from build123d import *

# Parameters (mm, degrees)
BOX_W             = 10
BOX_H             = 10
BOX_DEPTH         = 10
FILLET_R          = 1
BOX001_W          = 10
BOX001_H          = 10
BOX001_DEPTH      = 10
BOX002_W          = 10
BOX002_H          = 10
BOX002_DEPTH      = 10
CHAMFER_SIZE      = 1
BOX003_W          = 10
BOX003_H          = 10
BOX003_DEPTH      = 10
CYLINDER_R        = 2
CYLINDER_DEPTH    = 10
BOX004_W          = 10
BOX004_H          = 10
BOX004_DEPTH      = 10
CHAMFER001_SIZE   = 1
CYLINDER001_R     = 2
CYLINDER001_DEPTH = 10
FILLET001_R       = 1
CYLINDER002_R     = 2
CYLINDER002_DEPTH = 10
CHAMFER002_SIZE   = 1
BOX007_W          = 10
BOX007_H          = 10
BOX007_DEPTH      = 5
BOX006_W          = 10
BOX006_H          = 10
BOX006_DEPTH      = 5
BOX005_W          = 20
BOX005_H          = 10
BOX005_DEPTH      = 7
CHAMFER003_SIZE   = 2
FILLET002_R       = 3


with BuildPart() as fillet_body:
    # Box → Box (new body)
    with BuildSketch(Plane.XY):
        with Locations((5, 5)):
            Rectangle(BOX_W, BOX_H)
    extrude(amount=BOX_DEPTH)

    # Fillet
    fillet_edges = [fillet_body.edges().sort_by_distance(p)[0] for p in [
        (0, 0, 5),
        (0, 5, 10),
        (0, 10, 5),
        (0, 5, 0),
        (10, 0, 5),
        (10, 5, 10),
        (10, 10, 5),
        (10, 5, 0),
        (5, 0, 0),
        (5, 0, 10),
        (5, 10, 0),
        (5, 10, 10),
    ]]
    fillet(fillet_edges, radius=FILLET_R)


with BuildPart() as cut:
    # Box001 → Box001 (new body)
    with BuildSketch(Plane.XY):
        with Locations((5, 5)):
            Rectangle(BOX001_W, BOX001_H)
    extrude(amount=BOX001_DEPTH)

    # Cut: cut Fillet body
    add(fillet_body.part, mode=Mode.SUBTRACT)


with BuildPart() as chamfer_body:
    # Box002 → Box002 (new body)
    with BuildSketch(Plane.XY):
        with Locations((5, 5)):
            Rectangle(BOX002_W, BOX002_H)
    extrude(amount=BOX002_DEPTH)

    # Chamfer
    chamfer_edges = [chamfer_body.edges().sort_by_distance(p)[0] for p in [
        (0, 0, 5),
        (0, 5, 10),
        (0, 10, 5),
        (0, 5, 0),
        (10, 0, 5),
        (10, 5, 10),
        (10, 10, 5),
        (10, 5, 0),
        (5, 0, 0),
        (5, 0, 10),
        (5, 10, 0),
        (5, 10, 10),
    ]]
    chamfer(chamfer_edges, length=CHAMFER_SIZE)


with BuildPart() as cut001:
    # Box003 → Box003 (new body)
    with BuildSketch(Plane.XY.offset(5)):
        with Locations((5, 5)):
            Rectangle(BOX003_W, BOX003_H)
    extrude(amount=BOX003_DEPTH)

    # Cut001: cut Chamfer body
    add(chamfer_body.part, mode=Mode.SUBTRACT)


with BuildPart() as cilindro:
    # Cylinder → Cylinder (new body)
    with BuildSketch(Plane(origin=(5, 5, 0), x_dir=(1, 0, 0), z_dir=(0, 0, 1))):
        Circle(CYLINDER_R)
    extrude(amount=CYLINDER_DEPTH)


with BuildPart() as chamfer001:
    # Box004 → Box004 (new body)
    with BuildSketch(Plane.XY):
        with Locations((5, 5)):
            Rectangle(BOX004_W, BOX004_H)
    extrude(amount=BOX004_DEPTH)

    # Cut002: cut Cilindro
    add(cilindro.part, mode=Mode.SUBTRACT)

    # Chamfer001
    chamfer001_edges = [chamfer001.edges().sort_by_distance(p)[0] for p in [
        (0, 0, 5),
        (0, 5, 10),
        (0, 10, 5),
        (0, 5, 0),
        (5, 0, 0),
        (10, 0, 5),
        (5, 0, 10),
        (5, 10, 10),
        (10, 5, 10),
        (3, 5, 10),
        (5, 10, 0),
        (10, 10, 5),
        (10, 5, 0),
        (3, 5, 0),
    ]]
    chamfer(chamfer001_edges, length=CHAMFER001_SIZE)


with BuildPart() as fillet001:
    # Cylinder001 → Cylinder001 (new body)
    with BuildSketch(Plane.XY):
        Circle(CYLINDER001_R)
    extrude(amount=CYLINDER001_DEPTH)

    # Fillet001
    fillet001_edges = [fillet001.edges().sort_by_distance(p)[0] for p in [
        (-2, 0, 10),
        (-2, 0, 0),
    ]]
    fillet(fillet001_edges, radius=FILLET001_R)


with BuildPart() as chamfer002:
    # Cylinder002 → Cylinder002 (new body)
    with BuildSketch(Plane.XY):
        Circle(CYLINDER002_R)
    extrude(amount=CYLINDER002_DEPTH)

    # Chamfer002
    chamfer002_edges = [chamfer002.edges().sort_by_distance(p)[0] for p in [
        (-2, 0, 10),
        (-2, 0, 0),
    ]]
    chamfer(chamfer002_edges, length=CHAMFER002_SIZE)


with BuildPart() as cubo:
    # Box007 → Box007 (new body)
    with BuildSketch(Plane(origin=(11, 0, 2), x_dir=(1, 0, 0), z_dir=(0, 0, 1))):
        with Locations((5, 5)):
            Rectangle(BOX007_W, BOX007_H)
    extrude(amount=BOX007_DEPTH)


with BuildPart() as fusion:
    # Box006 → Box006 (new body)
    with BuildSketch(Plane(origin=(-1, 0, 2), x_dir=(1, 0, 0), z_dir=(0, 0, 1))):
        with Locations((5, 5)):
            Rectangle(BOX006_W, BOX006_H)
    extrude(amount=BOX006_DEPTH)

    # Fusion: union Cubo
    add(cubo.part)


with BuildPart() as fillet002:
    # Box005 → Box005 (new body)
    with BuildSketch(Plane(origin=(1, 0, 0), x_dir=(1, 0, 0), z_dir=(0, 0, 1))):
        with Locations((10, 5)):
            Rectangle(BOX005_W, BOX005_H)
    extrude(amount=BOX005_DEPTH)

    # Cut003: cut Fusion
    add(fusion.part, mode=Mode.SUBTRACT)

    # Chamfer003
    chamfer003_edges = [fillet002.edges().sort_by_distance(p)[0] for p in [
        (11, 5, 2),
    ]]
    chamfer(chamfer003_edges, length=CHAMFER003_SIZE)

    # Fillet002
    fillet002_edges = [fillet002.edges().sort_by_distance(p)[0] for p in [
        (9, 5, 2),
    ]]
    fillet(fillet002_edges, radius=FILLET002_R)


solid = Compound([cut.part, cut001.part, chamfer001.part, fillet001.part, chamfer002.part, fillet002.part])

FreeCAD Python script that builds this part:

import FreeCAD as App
import Part
import Sketcher
from FreeCAD import Vector


def edges_at(feature, points):
    """Names of the edges that pass closest to the given points."""
    edges = feature.Shape.Edges
    near = lambda p: min(range(len(edges)), key=lambda i: edges[i].distToShape(Part.Vertex(*p))[0])
    return sorted({f"Edge{near(p) + 1}" for p in points})


def add_polygon(sketch, points):
    """Adds a closed chain of lines whose ends are joined by coincident constraints."""
    first, n = sketch.GeometryCount, len(points)
    for a, b in zip(points, points[1:] + points[:1]):
        sketch.addGeometry(Part.LineSegment(App.Vector(*a, 0), App.Vector(*b, 0)), False)
    for i in range(n):
        sketch.addConstraint(Sketcher.Constraint("Coincident", first + i, 2, first + (i + 1) % n, 1))

doc = App.newDocument("Part")
params = doc.addObject("Spreadsheet::Sheet", "Params")
for row, (alias, value) in enumerate([
    ("sketch1_width", "10 mm"),
    ("pad1_length", "10 mm"),
    ("fillet_radius", "1 mm"),
    ("sketch2_width", "10 mm"),
    ("pad2_length", "10 mm"),
    ("sketch3_width", "10 mm"),
    ("pad3_length", "10 mm"),
    ("chamfer_size", "1 mm"),
    ("sketch4_width", "10 mm"),
    ("pad4_length", "10 mm"),
    ("sketch5_diameter", "4 mm"),
    ("pad5_length", "10 mm"),
    ("sketch6_width", "10 mm"),
    ("pad6_length", "10 mm"),
    ("chamfer2_size", "1 mm"),
    ("sketch7_diameter", "4 mm"),
    ("pad7_length", "10 mm"),
    ("fillet2_radius", "1 mm"),
    ("sketch8_diameter", "4 mm"),
    ("pad8_length", "10 mm"),
    ("chamfer3_size", "1 mm"),
    ("sketch9_width", "10 mm"),
    ("pad9_length", "5 mm"),
    ("sketch10_width", "10 mm"),
    ("pad10_length", "5 mm"),
    ("sketch11_width", "20 mm"),
    ("sketch11_height", "10 mm"),
    ("pad11_length", "7 mm"),
    ("chamfer4_size", "2 mm"),
    ("fillet3_radius", "3 mm"),
], start=1):
    params.set(f"A{row}", alias)
    params.set(f"B{row}", "=" + value)
    params.setAlias(f"B{row}", alias)

body = doc.addObject("PartDesign::Body", "Body")

sketch1 = body.newObject("Sketcher::SketchObject", "Sketch")
sketch1.AttachmentSupport = (doc.getObject("XY_Plane"), [""])
sketch1.MapMode = "FlatFace"
add_polygon(sketch1, [(0, 10), (0, 0), (10, 0), (10, 10)])
sketch1.addConstraint([
    Sketcher.Constraint("Vertical", 0),
    Sketcher.Constraint("Horizontal", 1),
    Sketcher.Constraint("Vertical", 2),
    Sketcher.Constraint("Horizontal", 3),
    Sketcher.Constraint("Coincident", 0, 2, -1, 1),
    Sketcher.Constraint("Equal", 3, 0),
    Sketcher.Constraint("DistanceX", 1, 1, 1, 2, 10.0),
])
sketch1.setExpression("Constraints[10]", "Params.sketch1_width")
pad1 = body.newObject("PartDesign::Pad", "Pad")
pad1.Profile = sketch1
pad1.setExpression("Length", "Params.pad1_length")
doc.recompute()

fillet = body.newObject("PartDesign::Fillet", "Fillet")
fillet.Base = (pad1, ["Edge1"])
fillet.UseAllEdges = True
fillet.setExpression("Radius", "Params.fillet_radius")
body2 = doc.addObject("PartDesign::Body", "Body001")

sketch2 = body2.newObject("Sketcher::SketchObject", "Sketch001")
sketch2.AttachmentSupport = (doc.getObject("XY_Plane001"), [""])
sketch2.MapMode = "FlatFace"
add_polygon(sketch2, [(0, 10), (0, 0), (10, 0), (10, 10)])
sketch2.addConstraint([
    Sketcher.Constraint("Vertical", 0),
    Sketcher.Constraint("Horizontal", 1),
    Sketcher.Constraint("Vertical", 2),
    Sketcher.Constraint("Horizontal", 3),
    Sketcher.Constraint("Coincident", 0, 2, -1, 1),
    Sketcher.Constraint("Equal", 3, 0),
    Sketcher.Constraint("DistanceX", 1, 1, 1, 2, 10.0),
])
sketch2.setExpression("Constraints[10]", "Params.sketch2_width")
pad2 = body2.newObject("PartDesign::Pad", "Pad001")
pad2.Profile = sketch2
pad2.setExpression("Length", "Params.pad2_length")
doc.recompute()

boolean = body2.newObject("PartDesign::Boolean", "Boolean")
boolean.Type = "Cut"
boolean.addObjects([body])
body3 = doc.addObject("PartDesign::Body", "Body002")

sketch3 = body3.newObject("Sketcher::SketchObject", "Sketch002")
sketch3.AttachmentSupport = (doc.getObject("XY_Plane002"), [""])
sketch3.MapMode = "FlatFace"
add_polygon(sketch3, [(0, 10), (0, 0), (10, 0), (10, 10)])
sketch3.addConstraint([
    Sketcher.Constraint("Vertical", 0),
    Sketcher.Constraint("Horizontal", 1),
    Sketcher.Constraint("Vertical", 2),
    Sketcher.Constraint("Horizontal", 3),
    Sketcher.Constraint("Coincident", 0, 2, -1, 1),
    Sketcher.Constraint("Equal", 3, 0),
    Sketcher.Constraint("DistanceX", 1, 1, 1, 2, 10.0),
])
sketch3.setExpression("Constraints[10]", "Params.sketch3_width")
pad3 = body3.newObject("PartDesign::Pad", "Pad002")
pad3.Profile = sketch3
pad3.setExpression("Length", "Params.pad3_length")
doc.recompute()

chamfer = body3.newObject("PartDesign::Chamfer", "Chamfer")
chamfer.Base = (pad3, ["Edge1"])
chamfer.UseAllEdges = True
chamfer.setExpression("Size", "Params.chamfer_size")
body4 = doc.addObject("PartDesign::Body", "Body003")

sketch4 = body4.newObject("Sketcher::SketchObject", "Sketch003")
sketch4.AttachmentSupport = (doc.getObject("XY_Plane003"), [""])
sketch4.MapMode = "FlatFace"
sketch4.AttachmentOffset = App.Placement(Vector(0, 0, 5), App.Rotation())
add_polygon(sketch4, [(0, 10), (0, 0), (10, 0), (10, 10)])
sketch4.addConstraint([
    Sketcher.Constraint("Vertical", 0),
    Sketcher.Constraint("Horizontal", 1),
    Sketcher.Constraint("Vertical", 2),
    Sketcher.Constraint("Horizontal", 3),
    Sketcher.Constraint("Coincident", 0, 2, -1, 1),
    Sketcher.Constraint("Equal", 3, 0),
    Sketcher.Constraint("DistanceX", 1, 1, 1, 2, 10.0),
])
sketch4.setExpression("Constraints[10]", "Params.sketch4_width")
pad4 = body4.newObject("PartDesign::Pad", "Pad003")
pad4.Profile = sketch4
pad4.setExpression("Length", "Params.pad4_length")
doc.recompute()

boolean2 = body4.newObject("PartDesign::Boolean", "Boolean001")
boolean2.Type = "Cut"
boolean2.addObjects([body3])
body5 = doc.addObject("PartDesign::Body", "Body004")

sketch5 = body5.newObject("Sketcher::SketchObject", "Sketch004")
sketch5.AttachmentSupport = (doc.getObject("XY_Plane004"), [""])
sketch5.MapMode = "FlatFace"
sketch5.addGeometry(Part.Circle(Vector(5, 5, 0), Vector(0, 0, 1), 2), False)
sketch5.addConstraint([
    Sketcher.Constraint("Diameter", 0, 4.0),
    Sketcher.Constraint("DistanceX", -1, 1, 0, 3, 5.0),
    Sketcher.Constraint("DistanceY", -1, 1, 0, 3, 5.0),
])
sketch5.setExpression("Constraints[0]", "Params.sketch5_diameter")
pad5 = body5.newObject("PartDesign::Pad", "Pad004")
pad5.Profile = sketch5
pad5.setExpression("Length", "Params.pad5_length")
body6 = doc.addObject("PartDesign::Body", "Body005")

sketch6 = body6.newObject("Sketcher::SketchObject", "Sketch005")
sketch6.AttachmentSupport = (doc.getObject("XY_Plane005"), [""])
sketch6.MapMode = "FlatFace"
add_polygon(sketch6, [(0, 10), (0, 0), (10, 0), (10, 10)])
sketch6.addConstraint([
    Sketcher.Constraint("Vertical", 0),
    Sketcher.Constraint("Horizontal", 1),
    Sketcher.Constraint("Vertical", 2),
    Sketcher.Constraint("Horizontal", 3),
    Sketcher.Constraint("Coincident", 0, 2, -1, 1),
    Sketcher.Constraint("Equal", 3, 0),
    Sketcher.Constraint("DistanceX", 1, 1, 1, 2, 10.0),
])
sketch6.setExpression("Constraints[10]", "Params.sketch6_width")
pad6 = body6.newObject("PartDesign::Pad", "Pad005")
pad6.Profile = sketch6
pad6.setExpression("Length", "Params.pad6_length")
doc.recompute()

boolean3 = body6.newObject("PartDesign::Boolean", "Boolean002")
boolean3.Type = "Cut"
boolean3.addObjects([body5])
doc.recompute()

chamfer2 = body6.newObject("PartDesign::Chamfer", "Chamfer001")
chamfer2.Base = (boolean3, ["Edge1"])
chamfer2.UseAllEdges = True
chamfer2.setExpression("Size", "Params.chamfer2_size")
body7 = doc.addObject("PartDesign::Body", "Body006")

sketch7 = body7.newObject("Sketcher::SketchObject", "Sketch006")
sketch7.AttachmentSupport = (doc.getObject("XY_Plane006"), [""])
sketch7.MapMode = "FlatFace"
sketch7.addGeometry(Part.Circle(Vector(0, 0, 0), Vector(0, 0, 1), 2), False)
sketch7.addConstraint([
    Sketcher.Constraint("Coincident", 0, 3, -1, 1),
    Sketcher.Constraint("Diameter", 0, 4.0),
])
sketch7.setExpression("Constraints[1]", "Params.sketch7_diameter")
pad7 = body7.newObject("PartDesign::Pad", "Pad006")
pad7.Profile = sketch7
pad7.setExpression("Length", "Params.pad7_length")
doc.recompute()

fillet2 = body7.newObject("PartDesign::Fillet", "Fillet001")
fillet2.Base = (pad7, edges_at(pad7, [(-2, 0, 10), (-2, 0, 0)]))
fillet2.setExpression("Radius", "Params.fillet2_radius")
body8 = doc.addObject("PartDesign::Body", "Body007")

sketch8 = body8.newObject("Sketcher::SketchObject", "Sketch007")
sketch8.AttachmentSupport = (doc.getObject("XY_Plane007"), [""])
sketch8.MapMode = "FlatFace"
sketch8.addGeometry(Part.Circle(Vector(0, 0, 0), Vector(0, 0, 1), 2), False)
sketch8.addConstraint([
    Sketcher.Constraint("Coincident", 0, 3, -1, 1),
    Sketcher.Constraint("Diameter", 0, 4.0),
])
sketch8.setExpression("Constraints[1]", "Params.sketch8_diameter")
pad8 = body8.newObject("PartDesign::Pad", "Pad007")
pad8.Profile = sketch8
pad8.setExpression("Length", "Params.pad8_length")
doc.recompute()

chamfer3 = body8.newObject("PartDesign::Chamfer", "Chamfer002")
chamfer3.Base = (pad8, edges_at(pad8, [(-2, 0, 10), (-2, 0, 0)]))
chamfer3.setExpression("Size", "Params.chamfer3_size")
body9 = doc.addObject("PartDesign::Body", "Body008")

sketch9 = body9.newObject("Sketcher::SketchObject", "Sketch008")
sketch9.AttachmentSupport = (doc.getObject("XY_Plane008"), [""])
sketch9.MapMode = "FlatFace"
sketch9.AttachmentOffset = App.Placement(Vector(0, 0, 2), App.Rotation())
add_polygon(sketch9, [(11, 10), (11, 0), (21, 0), (21, 10)])
sketch9.addConstraint([
    Sketcher.Constraint("Vertical", 0),
    Sketcher.Constraint("Horizontal", 1),
    Sketcher.Constraint("Vertical", 2),
    Sketcher.Constraint("Horizontal", 3),
    Sketcher.Constraint("PointOnObject", 0, 2, -1),
    Sketcher.Constraint("Equal", 3, 0),
    Sketcher.Constraint("DistanceX", 1, 1, 1, 2, 10.0),
    Sketcher.Constraint("DistanceX", -1, 1, 0, 2, 11.0),
])
sketch9.setExpression("Constraints[10]", "Params.sketch9_width")
pad9 = body9.newObject("PartDesign::Pad", "Pad008")
pad9.Profile = sketch9
pad9.setExpression("Length", "Params.pad9_length")
body10 = doc.addObject("PartDesign::Body", "Body009")
body10.AllowCompound = True

sketch10 = body10.newObject("Sketcher::SketchObject", "Sketch009")
sketch10.AttachmentSupport = (doc.getObject("XY_Plane009"), [""])
sketch10.MapMode = "FlatFace"
sketch10.AttachmentOffset = App.Placement(Vector(0, 0, 2), App.Rotation())
add_polygon(sketch10, [(-1, 10), (-1, 0), (9, 0), (9, 10)])
sketch10.addConstraint([
    Sketcher.Constraint("Vertical", 0),
    Sketcher.Constraint("Horizontal", 1),
    Sketcher.Constraint("Vertical", 2),
    Sketcher.Constraint("Horizontal", 3),
    Sketcher.Constraint("PointOnObject", 0, 2, -1),
    Sketcher.Constraint("Equal", 3, 0),
    Sketcher.Constraint("DistanceX", 1, 1, 1, 2, 10.0),
    Sketcher.Constraint("DistanceX", 0, 2, -1, 1, 1.0),
])
sketch10.setExpression("Constraints[10]", "Params.sketch10_width")
pad10 = body10.newObject("PartDesign::Pad", "Pad009")
pad10.Profile = sketch10
pad10.setExpression("Length", "Params.pad10_length")
doc.recompute()

boolean4 = body10.newObject("PartDesign::Boolean", "Boolean003")
boolean4.Type = "Fuse"
boolean4.addObjects([body9])
body11 = doc.addObject("PartDesign::Body", "Body010")

sketch11 = body11.newObject("Sketcher::SketchObject", "Sketch010")
sketch11.AttachmentSupport = (doc.getObject("XY_Plane010"), [""])
sketch11.MapMode = "FlatFace"
add_polygon(sketch11, [(1, 10), (1, 0), (21, 0), (21, 10)])
sketch11.addConstraint([
    Sketcher.Constraint("Vertical", 0),
    Sketcher.Constraint("Horizontal", 1),
    Sketcher.Constraint("Vertical", 2),
    Sketcher.Constraint("Horizontal", 3),
    Sketcher.Constraint("PointOnObject", 0, 2, -1),
    Sketcher.Constraint("DistanceX", 1, 1, 1, 2, 20.0),
    Sketcher.Constraint("DistanceY", 0, 2, 0, 1, 10.0),
    Sketcher.Constraint("DistanceX", -1, 1, 0, 2, 1.0),
])
sketch11.setExpression("Constraints[9]", "Params.sketch11_width")
sketch11.setExpression("Constraints[10]", "Params.sketch11_height")
pad11 = body11.newObject("PartDesign::Pad", "Pad010")
pad11.Profile = sketch11
pad11.setExpression("Length", "Params.pad11_length")
doc.recompute()

boolean5 = body11.newObject("PartDesign::Boolean", "Boolean004")
boolean5.Type = "Cut"
boolean5.addObjects([body10])
doc.recompute()

chamfer4 = body11.newObject("PartDesign::Chamfer", "Chamfer003")
chamfer4.Base = (boolean5, edges_at(boolean5, [(11, 5, 2)]))
chamfer4.setExpression("Size", "Params.chamfer4_size")
doc.recompute()

fillet3 = body11.newObject("PartDesign::Fillet", "Fillet002")
fillet3.Base = (chamfer4, edges_at(chamfer4, [(9, 5, 2)]))
fillet3.setExpression("Radius", "Params.fillet3_radius")

doc.recompute()
